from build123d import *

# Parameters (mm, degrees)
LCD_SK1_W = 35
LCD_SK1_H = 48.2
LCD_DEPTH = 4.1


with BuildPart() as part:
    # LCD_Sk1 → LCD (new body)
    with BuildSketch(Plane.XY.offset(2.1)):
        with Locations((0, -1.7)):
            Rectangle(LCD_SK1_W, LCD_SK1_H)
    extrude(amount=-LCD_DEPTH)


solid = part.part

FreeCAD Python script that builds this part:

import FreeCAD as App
import Part
import Sketcher
Q = App.Units.Quantity


def add_polygon(sketch, points):
    """Adds a closed chain of lines whose ends are joined by coincident constraints."""
    first, n = sketch.GeometryCount, len(points)
    for a, b in zip(points, points[1:] + points[:1]):
        sketch.addGeometry(Part.LineSegment(App.Vector(*a, 0), App.Vector(*b, 0)), False)
    for i in range(n):
        sketch.addConstraint(Sketcher.Constraint("Coincident", first + i, 2, first + (i + 1) % n, 1))

doc = App.newDocument("Part")
body = doc.addObject("PartDesign::Body", "Body")

sketch1 = doc.addObject("Sketcher::SketchObject", "Sketch")
body.addObject(sketch1)
sketch1.AttachmentSupport = (doc.XY_Plane, [""])
sketch1.MapMode = "FlatFace"
sketch1.AttachmentOffset = App.Placement(App.Vector(0, 0, 2.1), App.Rotation())
add_polygon(sketch1, [(-18, 22), (-18, -26), (18, -26), (18, 22)])
sketch1.addConstraint([
    Sketcher.Constraint("Vertical", 0),
    Sketcher.Constraint("Horizontal", 1),
    Sketcher.Constraint("Vertical", 2),
    Sketcher.Constraint("Horizontal", 3),
    Sketcher.Constraint("DistanceX", 1, 1, 1, 2, Q("35 mm")),
    Sketcher.Constraint("DistanceY", 0, 2, 0, 1, Q("48.2 mm")),
    Sketcher.Constraint("DistanceX", 0, 2, -1, 1, Q("17.5 mm")),
    Sketcher.Constraint("DistanceY", 0, 2, -1, 1, Q("25.8 mm")),
])
pad1 = doc.addObject("PartDesign::Pad", "Pad")
body.addObject(pad1)
pad1.Profile = sketch1
pad1.Length = 4.1
pad1.Reversed = True

doc.recompute()
